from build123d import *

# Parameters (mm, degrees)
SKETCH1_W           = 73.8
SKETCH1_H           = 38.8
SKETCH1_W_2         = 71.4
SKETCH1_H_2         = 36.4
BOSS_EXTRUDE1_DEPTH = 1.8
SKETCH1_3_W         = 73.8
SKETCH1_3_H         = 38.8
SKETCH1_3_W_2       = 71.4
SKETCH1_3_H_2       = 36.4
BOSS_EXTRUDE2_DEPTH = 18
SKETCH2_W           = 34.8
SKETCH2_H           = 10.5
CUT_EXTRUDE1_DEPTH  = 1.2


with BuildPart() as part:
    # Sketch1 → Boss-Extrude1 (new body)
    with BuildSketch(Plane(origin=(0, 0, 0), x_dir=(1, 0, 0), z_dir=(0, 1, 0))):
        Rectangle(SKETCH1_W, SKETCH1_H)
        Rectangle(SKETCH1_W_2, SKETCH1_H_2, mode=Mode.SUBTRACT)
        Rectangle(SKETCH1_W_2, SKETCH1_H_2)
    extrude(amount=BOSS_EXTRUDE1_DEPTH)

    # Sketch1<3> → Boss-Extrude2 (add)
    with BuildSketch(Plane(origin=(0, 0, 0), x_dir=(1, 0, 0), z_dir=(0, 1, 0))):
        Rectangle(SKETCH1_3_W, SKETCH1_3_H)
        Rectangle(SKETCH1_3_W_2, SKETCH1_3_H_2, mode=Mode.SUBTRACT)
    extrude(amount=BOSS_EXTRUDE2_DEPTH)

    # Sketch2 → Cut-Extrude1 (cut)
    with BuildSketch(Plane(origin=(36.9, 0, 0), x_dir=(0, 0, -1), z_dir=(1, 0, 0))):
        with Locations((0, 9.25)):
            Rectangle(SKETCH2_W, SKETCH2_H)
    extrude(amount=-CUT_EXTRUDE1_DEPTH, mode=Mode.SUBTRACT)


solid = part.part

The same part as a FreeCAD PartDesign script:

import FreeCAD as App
import Part
import Sketcher
from FreeCAD import Vector
Q = App.Units.Quantity

doc = App.newDocument("Part")
body = doc.addObject("PartDesign::Body", "Body")

sketch1 = body.newObject("Sketcher::SketchObject", "Sketch")
sketch1.AttachmentSupport = (doc.getObject("XZ_Plane"), [""])
sketch1.MapMode = "FlatFace"
sketch1.addGeometry(Part.LineSegment(Vector(-37, -19, 0), Vector(-37, 19, 0)), False)
sketch1.addGeometry(Part.LineSegment(Vector(-37, 19, 0), Vector(37, 19, 0)), False)
sketch1.addGeometry(Part.LineSegment(Vector(37, 19, 0), Vector(37, -19, 0)), False)
sketch1.addGeometry(Part.LineSegment(Vector(37, -19, 0), Vector(-37, -19, 0)), False)
sketch1.addConstraint(Sketcher.Constraint("Coincident", 0, 2, 1, 1))
sketch1.addConstraint(Sketcher.Constraint("Coincident", 1, 2, 2, 1))
sketch1.addConstraint(Sketcher.Constraint("Coincident", 2, 2, 3, 1))
sketch1.addConstraint(Sketcher.Constraint("Coincident", 3, 2, 0, 1))
sketch1.addConstraint(Sketcher.Constraint("Vertical", 0))
sketch1.addConstraint(Sketcher.Constraint("Horizontal", 1))
sketch1.addConstraint(Sketcher.Constraint("Vertical", 2))
sketch1.addConstraint(Sketcher.Constraint("Horizontal", 3))
sketch1.addConstraint(Sketcher.Constraint("Symmetric", 0, 2, 2, 2, -1, 1))
sketch1.addConstraint(Sketcher.Constraint("DistanceX", 1, 1, 1, 2, Q("73.8 mm")))
sketch1.addConstraint(Sketcher.Constraint("DistanceY", 0, 1, 0, 2, Q("38.8 mm")))
pad1 = body.newObject("PartDesign::Pad", "Pad")
pad1.Profile = sketch1
pad1.Length = 1.8
pad1.Reversed = True

sketch2 = body.newObject("Sketcher::SketchObject", "Sketch001")
sketch2.AttachmentSupport = (doc.getObject("XZ_Plane"), [""])
sketch2.MapMode = "FlatFace"
sketch2.addGeometry(Part.LineSegment(Vector(-37, -19, 0), Vector(-37, 19, 0)), False)
sketch2.addGeometry(Part.LineSegment(Vector(-37, 19, 0), Vector(37, 19, 0)), False)
sketch2.addGeometry(Part.LineSegment(Vector(37, 19, 0), Vector(37, -19, 0)), False)
sketch2.addGeometry(Part.LineSegment(Vector(37, -19, 0), Vector(-37, -19, 0)), False)
sketch2.addGeometry(Part.LineSegment(Vector(36, 18, 0), Vector(-36, 18, 0)), False)
sketch2.addGeometry(Part.LineSegment(Vector(-36, 18, 0), Vector(-36, -18, 0)), False)
sketch2.addGeometry(Part.LineSegment(Vector(-36, -18, 0), Vector(36, -18, 0)), False)
sketch2.addGeometry(Part.LineSegment(Vector(36, -18, 0), Vector(36, 18, 0)), False)
sketch2.addConstraint(Sketcher.Constraint("Coincident", 0, 2, 1, 1))
sketch2.addConstraint(Sketcher.Constraint("Coincident", 1, 2, 2, 1))
sketch2.addConstraint(Sketcher.Constraint("Coincident", 2, 2, 3, 1))
sketch2.addConstraint(Sketcher.Constraint("Coincident", 3, 2, 0, 1))
sketch2.addConstraint(Sketcher.Constraint("Coincident", 4, 2, 5, 1))
sketch2.addConstraint(Sketcher.Constraint("Coincident", 5, 2, 6, 1))
sketch2.addConstraint(Sketcher.Constraint("Coincident", 6, 2, 7, 1))
sketch2.addConstraint(Sketcher.Constraint("Coincident", 7, 2, 4, 1))
sketch2.addConstraint(Sketcher.Constraint("Vertical", 0))
sketch2.addConstraint(Sketcher.Constraint("Horizontal", 1))
sketch2.addConstraint(Sketcher.Constraint("Vertical", 2))
sketch2.addConstraint(Sketcher.Constraint("Horizontal", 3))
sketch2.addConstraint(Sketcher.Constraint("Horizontal", 4))
sketch2.addConstraint(Sketcher.Constraint("Vertical", 5))
sketch2.addConstraint(Sketcher.Constraint("Horizontal", 6))
sketch2.addConstraint(Sketcher.Constraint("Vertical", 7))
sketch2.addConstraint(Sketcher.Constraint("Symmetric", 0, 2, 2, 2, -1, 1))
sketch2.addConstraint(Sketcher.Constraint("Symmetric", 4, 2, 6, 2, -1, 1))
sketch2.addConstraint(Sketcher.Constraint("DistanceX", 1, 1, 1, 2, Q("73.8 mm")))
sketch2.addConstraint(Sketcher.Constraint("DistanceX", 4, 2, 4, 1, Q("71.4 mm")))
sketch2.addConstraint(Sketcher.Constraint("DistanceY", 0, 1, 0, 2, Q("38.8 mm")))
sketch2.addConstraint(Sketcher.Constraint("DistanceY", 5, 2, 5, 1, Q("36.4 mm")))
pad2 = body.newObject("PartDesign::Pad", "Pad001")
pad2.Profile = sketch2
pad2.Length = 18
pad2.Reversed = True

sketch3 = body.newObject("Sketcher::SketchObject", "Sketch002")
sketch3.AttachmentSupport = (doc.getObject("YZ_Plane"), [""])
sketch3.MapMode = "FlatFace"
sketch3.AttachmentOffset = App.Placement(Vector(0, 0, 36.9), App.Rotation())
sketch3.addGeometry(Part.LineSegment(Vector(14, 17, 0), Vector(4, 17, 0)), False)
sketch3.addGeometry(Part.LineSegment(Vector(4, 17, 0), Vector(4, -17, 0)), False)
sketch3.addGeometry(Part.LineSegment(Vector(4, -17, 0), Vector(14, -17, 0)), False)
sketch3.addGeometry(Part.LineSegment(Vector(14, -17, 0), Vector(14, 17, 0)), False)
sketch3.addConstraint(Sketcher.Constraint("Coincident", 0, 2, 1, 1))
sketch3.addConstraint(Sketcher.Constraint("Coincident", 1, 2, 2, 1))
sketch3.addConstraint(Sketcher.Constraint("Coincident", 2, 2, 3, 1))
sketch3.addConstraint(Sketcher.Constraint("Coincident", 3, 2, 0, 1))
sketch3.addConstraint(Sketcher.Constraint("Horizontal", 0))
sketch3.addConstraint(Sketcher.Constraint("Vertical", 1))
sketch3.addConstraint(Sketcher.Constraint("Horizontal", 2))
sketch3.addConstraint(Sketcher.Constraint("Vertical", 3))
sketch3.addConstraint(Sketcher.Constraint("DistanceX", 0, 2, 0, 1, Q("10.5 mm")))
sketch3.addConstraint(Sketcher.Constraint("DistanceY", 1, 2, 1, 1, Q("34.8 mm")))
sketch3.addConstraint(Sketcher.Constraint("DistanceX", -1, 1, 0, 2, Q("4 mm")))
sketch3.addConstraint(Sketcher.Constraint("DistanceY", -1, 1, 0, 2, Q("17.4 mm")))
pocket1 = body.newObject("PartDesign::Pocket", "Pocket")
pocket1.Profile = sketch3
pocket1.Length = 1.2

doc.recompute()
